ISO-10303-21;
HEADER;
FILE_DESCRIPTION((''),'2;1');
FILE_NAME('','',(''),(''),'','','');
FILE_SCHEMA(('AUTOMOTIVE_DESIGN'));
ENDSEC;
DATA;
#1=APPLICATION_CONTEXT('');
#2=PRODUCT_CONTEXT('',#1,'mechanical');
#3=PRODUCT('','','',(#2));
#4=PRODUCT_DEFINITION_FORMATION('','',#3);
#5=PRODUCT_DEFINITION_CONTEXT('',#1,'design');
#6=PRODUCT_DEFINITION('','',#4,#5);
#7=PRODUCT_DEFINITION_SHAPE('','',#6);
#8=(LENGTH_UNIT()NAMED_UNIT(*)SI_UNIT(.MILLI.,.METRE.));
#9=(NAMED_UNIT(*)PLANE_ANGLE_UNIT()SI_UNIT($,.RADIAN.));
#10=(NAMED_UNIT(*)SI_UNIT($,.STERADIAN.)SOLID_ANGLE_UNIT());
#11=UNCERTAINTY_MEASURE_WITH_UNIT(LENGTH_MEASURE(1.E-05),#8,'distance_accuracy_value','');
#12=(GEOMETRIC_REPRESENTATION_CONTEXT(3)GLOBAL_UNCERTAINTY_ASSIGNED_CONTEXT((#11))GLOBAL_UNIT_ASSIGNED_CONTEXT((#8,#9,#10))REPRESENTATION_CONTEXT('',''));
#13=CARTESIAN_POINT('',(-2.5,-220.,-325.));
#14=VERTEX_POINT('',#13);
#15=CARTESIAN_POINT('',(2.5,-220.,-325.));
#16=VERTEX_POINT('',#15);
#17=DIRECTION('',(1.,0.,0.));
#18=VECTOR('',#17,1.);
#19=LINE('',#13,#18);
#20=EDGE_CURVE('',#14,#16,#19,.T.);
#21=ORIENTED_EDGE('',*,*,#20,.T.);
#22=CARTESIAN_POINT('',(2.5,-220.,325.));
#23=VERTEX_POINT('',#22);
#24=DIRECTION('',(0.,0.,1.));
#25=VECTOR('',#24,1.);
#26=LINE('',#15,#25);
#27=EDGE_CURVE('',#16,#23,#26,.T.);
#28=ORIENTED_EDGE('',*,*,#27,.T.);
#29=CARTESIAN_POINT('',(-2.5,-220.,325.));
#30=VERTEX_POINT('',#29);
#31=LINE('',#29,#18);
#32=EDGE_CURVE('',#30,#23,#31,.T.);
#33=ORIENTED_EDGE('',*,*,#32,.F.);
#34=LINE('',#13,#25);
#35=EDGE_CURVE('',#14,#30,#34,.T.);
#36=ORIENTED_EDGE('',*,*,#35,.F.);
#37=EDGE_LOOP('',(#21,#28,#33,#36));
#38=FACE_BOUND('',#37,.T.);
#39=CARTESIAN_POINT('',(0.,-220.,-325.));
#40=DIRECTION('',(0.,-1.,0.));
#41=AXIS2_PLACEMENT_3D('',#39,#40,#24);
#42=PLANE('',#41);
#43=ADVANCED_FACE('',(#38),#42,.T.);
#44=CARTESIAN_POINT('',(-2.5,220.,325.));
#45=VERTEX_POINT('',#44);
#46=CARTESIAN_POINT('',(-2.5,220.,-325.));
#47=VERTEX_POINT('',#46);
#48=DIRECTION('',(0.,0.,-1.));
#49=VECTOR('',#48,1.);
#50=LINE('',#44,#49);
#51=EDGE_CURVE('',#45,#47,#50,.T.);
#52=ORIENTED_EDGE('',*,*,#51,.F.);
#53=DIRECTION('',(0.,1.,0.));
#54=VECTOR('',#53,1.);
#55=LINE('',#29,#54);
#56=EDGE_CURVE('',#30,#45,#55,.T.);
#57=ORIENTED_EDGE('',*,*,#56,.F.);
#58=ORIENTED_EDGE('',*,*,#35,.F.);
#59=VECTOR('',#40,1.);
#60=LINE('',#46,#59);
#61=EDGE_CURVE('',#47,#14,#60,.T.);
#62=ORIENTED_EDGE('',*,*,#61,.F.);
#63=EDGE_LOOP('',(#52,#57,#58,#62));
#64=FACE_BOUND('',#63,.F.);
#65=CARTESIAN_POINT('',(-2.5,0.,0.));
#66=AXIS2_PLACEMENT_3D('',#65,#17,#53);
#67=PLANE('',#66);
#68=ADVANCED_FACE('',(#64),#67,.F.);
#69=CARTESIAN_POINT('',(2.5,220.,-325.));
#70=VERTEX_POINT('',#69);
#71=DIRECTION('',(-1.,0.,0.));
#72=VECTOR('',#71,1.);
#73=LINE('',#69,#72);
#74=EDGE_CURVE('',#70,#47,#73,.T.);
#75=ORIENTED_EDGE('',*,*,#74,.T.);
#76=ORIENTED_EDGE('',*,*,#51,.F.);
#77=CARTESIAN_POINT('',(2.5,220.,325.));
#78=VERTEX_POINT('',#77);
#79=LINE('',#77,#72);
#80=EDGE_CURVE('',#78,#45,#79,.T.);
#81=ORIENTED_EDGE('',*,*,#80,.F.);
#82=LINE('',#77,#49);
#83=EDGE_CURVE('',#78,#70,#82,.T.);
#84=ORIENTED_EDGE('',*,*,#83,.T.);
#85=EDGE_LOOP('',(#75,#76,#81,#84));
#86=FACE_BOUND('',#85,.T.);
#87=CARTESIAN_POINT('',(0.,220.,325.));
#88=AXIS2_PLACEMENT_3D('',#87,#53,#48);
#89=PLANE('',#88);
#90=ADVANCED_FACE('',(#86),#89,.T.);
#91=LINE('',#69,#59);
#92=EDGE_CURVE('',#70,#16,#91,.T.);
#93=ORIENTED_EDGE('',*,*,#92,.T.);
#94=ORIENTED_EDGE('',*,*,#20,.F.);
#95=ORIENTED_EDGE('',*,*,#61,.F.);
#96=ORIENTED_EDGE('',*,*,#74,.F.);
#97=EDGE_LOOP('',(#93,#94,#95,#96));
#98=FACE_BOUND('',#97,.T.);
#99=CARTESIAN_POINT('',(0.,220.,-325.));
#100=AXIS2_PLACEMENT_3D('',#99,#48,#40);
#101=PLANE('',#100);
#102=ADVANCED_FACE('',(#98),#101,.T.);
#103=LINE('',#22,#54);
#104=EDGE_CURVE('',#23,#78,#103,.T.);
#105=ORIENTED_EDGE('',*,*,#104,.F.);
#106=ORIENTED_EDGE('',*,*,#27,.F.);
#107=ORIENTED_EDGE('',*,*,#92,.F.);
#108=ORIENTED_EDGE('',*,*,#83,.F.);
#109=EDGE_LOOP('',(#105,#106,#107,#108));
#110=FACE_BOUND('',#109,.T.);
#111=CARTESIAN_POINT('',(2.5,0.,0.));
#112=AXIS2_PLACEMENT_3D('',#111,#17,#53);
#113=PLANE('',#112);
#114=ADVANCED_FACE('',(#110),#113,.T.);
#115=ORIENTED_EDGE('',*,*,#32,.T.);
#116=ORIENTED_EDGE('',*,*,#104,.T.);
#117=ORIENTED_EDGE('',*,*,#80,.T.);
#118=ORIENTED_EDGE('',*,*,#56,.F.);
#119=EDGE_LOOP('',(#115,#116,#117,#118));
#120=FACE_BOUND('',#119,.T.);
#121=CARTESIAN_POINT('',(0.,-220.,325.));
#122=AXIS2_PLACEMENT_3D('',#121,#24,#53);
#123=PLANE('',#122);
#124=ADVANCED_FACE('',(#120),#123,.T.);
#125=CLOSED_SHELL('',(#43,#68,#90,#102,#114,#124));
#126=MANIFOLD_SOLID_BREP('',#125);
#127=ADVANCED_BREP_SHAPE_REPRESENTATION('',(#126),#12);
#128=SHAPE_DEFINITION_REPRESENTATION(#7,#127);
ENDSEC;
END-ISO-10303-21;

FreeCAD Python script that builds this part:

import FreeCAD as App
import Part
import Sketcher
from FreeCAD import Vector
Q = App.Units.Quantity

doc = App.newDocument("Part")
body = doc.addObject("PartDesign::Body", "Body")

# Sketch on YZ plane
sketch1 = body.newObject("Sketcher::SketchObject", "Sketch")
sketch1.AttachmentSupport = (doc.getObject("YZ_Plane"), [""])
sketch1.MapMode = "FlatFace"
sketch1.addGeometry([
    Part.LineSegment(Vector(220, 325, 0), Vector(-220, 325, 0)),
    Part.LineSegment(Vector(-220, 325, 0), Vector(-220, -325, 0)),
    Part.LineSegment(Vector(-220, -325, 0), Vector(220, -325, 0)),
    Part.LineSegment(Vector(220, -325, 0), Vector(220, 325, 0)),
], False)
sketch1.addConstraint([
    Sketcher.Constraint("Coincident", 0, 2, 1, 1),
    Sketcher.Constraint("Coincident", 1, 2, 2, 1),
    Sketcher.Constraint("Coincident", 2, 2, 3, 1),
    Sketcher.Constraint("Coincident", 3, 2, 0, 1),
    Sketcher.Constraint("Horizontal", 0),
    Sketcher.Constraint("Vertical", 1),
    Sketcher.Constraint("Horizontal", 2),
    Sketcher.Constraint("Vertical", 3),
    Sketcher.Constraint("Symmetric", 0, 2, 2, 2, -1, 1),
    Sketcher.Constraint("DistanceX", 0, 2, 0, 1, Q("440 mm")),
    Sketcher.Constraint("DistanceY", 1, 2, 1, 1, Q("650 mm")),
])
pad1 = body.newObject("PartDesign::Pad", "Pad")
pad1.Profile = sketch1
pad1.Length = 5
pad1.Midplane = True

doc.recompute()
